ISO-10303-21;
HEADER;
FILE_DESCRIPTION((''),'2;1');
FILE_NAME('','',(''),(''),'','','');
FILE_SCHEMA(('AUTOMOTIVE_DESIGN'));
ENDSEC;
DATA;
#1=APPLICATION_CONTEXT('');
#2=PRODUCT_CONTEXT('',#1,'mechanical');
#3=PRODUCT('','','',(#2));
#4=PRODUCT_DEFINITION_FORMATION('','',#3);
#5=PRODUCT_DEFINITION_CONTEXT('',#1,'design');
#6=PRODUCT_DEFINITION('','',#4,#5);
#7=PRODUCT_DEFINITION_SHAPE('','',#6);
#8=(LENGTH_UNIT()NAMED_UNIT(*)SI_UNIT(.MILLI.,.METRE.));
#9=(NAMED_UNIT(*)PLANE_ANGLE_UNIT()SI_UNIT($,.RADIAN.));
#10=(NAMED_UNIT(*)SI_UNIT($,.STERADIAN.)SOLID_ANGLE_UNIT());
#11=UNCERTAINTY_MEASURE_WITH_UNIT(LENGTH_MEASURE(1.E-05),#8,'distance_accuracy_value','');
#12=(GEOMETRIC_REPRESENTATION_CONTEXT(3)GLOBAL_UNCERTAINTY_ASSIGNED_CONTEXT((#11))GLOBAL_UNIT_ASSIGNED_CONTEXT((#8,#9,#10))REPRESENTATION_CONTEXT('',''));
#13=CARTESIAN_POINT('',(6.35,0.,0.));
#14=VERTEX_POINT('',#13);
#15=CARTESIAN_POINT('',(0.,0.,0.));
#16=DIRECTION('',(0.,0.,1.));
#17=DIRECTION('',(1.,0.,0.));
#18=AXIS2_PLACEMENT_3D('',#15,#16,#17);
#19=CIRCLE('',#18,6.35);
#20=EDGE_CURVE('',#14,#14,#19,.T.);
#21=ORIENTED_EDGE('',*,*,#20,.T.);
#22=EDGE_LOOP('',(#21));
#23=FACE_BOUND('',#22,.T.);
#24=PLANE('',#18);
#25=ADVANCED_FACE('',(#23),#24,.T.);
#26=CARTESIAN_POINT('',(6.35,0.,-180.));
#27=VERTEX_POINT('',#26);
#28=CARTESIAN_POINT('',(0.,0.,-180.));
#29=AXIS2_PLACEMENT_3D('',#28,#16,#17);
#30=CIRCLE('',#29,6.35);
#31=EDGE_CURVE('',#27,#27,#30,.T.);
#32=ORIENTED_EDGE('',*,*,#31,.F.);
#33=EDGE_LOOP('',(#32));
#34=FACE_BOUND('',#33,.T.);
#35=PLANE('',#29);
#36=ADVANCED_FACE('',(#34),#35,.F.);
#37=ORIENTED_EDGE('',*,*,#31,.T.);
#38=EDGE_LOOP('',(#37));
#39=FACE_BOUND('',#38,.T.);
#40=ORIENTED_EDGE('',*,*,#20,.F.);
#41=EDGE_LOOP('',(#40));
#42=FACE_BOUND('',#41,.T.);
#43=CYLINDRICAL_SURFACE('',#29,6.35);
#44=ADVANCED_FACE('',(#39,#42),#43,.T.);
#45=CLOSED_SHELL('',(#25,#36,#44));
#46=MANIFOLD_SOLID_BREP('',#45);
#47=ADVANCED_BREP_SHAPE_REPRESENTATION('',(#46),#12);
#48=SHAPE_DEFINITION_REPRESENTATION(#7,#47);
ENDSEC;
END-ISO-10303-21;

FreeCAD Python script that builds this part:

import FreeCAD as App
import Part
import Sketcher
from FreeCAD import Vector
Q = App.Units.Quantity

doc = App.newDocument("Part")
params = doc.addObject("Spreadsheet::Sheet", "Params")
for row, (alias, value) in enumerate([
    ("sketch1_diameter", "12.7 mm"),
    ("sketch2_height", "180 mm"),
], start=1):
    params.set(f"A{row}", alias)
    params.set(f"B{row}", "=" + value)
    params.setAlias(f"B{row}", alias)

body = doc.addObject("PartDesign::Body", "Body")

# Sketch on XY plane
sketch1 = body.newObject("Sketcher::SketchObject", "Sketch")
sketch1.AttachmentSupport = (doc.getObject("XY_Plane"), [""])
sketch1.MapMode = "FlatFace"
sketch1.addGeometry(Part.Circle(Vector(0, 0, 0), Vector(0, 0, 1), 6), False)
sketch1.addConstraint(Sketcher.Constraint("Coincident", 0, 3, -1, 1))
sketch1.addConstraint(Sketcher.Constraint("Diameter", 0, Q("12.7 mm")))
sketch1.setExpression("Constraints[1]", "Params.sketch1_diameter")

# Sketch on XZ plane
sketch2 = body.newObject("Sketcher::SketchObject", "Sketch001")
sketch2.AttachmentSupport = (doc.getObject("XZ_Plane"), [""])
sketch2.MapMode = "FlatFace"
sketch2.addGeometry(Part.LineSegment(Vector(0, 0, 0), Vector(0, -180, 0)), False)
sketch2.addConstraint(Sketcher.Constraint("Vertical", 0))
sketch2.addConstraint(Sketcher.Constraint("Coincident", 0, 1, -1, 1))
sketch2.addConstraint(Sketcher.Constraint("DistanceY", 0, 2, 0, 1, Q("180 mm")))
sketch2.setExpression("Constraints[2]", "Params.sketch2_height")
doc.recompute()

additivepipe = body.newObject("PartDesign::AdditivePipe", "AdditivePipe")
additivepipe.Profile = sketch1
additivepipe.Spine = (sketch2, ["Edge1"])

doc.recompute()
